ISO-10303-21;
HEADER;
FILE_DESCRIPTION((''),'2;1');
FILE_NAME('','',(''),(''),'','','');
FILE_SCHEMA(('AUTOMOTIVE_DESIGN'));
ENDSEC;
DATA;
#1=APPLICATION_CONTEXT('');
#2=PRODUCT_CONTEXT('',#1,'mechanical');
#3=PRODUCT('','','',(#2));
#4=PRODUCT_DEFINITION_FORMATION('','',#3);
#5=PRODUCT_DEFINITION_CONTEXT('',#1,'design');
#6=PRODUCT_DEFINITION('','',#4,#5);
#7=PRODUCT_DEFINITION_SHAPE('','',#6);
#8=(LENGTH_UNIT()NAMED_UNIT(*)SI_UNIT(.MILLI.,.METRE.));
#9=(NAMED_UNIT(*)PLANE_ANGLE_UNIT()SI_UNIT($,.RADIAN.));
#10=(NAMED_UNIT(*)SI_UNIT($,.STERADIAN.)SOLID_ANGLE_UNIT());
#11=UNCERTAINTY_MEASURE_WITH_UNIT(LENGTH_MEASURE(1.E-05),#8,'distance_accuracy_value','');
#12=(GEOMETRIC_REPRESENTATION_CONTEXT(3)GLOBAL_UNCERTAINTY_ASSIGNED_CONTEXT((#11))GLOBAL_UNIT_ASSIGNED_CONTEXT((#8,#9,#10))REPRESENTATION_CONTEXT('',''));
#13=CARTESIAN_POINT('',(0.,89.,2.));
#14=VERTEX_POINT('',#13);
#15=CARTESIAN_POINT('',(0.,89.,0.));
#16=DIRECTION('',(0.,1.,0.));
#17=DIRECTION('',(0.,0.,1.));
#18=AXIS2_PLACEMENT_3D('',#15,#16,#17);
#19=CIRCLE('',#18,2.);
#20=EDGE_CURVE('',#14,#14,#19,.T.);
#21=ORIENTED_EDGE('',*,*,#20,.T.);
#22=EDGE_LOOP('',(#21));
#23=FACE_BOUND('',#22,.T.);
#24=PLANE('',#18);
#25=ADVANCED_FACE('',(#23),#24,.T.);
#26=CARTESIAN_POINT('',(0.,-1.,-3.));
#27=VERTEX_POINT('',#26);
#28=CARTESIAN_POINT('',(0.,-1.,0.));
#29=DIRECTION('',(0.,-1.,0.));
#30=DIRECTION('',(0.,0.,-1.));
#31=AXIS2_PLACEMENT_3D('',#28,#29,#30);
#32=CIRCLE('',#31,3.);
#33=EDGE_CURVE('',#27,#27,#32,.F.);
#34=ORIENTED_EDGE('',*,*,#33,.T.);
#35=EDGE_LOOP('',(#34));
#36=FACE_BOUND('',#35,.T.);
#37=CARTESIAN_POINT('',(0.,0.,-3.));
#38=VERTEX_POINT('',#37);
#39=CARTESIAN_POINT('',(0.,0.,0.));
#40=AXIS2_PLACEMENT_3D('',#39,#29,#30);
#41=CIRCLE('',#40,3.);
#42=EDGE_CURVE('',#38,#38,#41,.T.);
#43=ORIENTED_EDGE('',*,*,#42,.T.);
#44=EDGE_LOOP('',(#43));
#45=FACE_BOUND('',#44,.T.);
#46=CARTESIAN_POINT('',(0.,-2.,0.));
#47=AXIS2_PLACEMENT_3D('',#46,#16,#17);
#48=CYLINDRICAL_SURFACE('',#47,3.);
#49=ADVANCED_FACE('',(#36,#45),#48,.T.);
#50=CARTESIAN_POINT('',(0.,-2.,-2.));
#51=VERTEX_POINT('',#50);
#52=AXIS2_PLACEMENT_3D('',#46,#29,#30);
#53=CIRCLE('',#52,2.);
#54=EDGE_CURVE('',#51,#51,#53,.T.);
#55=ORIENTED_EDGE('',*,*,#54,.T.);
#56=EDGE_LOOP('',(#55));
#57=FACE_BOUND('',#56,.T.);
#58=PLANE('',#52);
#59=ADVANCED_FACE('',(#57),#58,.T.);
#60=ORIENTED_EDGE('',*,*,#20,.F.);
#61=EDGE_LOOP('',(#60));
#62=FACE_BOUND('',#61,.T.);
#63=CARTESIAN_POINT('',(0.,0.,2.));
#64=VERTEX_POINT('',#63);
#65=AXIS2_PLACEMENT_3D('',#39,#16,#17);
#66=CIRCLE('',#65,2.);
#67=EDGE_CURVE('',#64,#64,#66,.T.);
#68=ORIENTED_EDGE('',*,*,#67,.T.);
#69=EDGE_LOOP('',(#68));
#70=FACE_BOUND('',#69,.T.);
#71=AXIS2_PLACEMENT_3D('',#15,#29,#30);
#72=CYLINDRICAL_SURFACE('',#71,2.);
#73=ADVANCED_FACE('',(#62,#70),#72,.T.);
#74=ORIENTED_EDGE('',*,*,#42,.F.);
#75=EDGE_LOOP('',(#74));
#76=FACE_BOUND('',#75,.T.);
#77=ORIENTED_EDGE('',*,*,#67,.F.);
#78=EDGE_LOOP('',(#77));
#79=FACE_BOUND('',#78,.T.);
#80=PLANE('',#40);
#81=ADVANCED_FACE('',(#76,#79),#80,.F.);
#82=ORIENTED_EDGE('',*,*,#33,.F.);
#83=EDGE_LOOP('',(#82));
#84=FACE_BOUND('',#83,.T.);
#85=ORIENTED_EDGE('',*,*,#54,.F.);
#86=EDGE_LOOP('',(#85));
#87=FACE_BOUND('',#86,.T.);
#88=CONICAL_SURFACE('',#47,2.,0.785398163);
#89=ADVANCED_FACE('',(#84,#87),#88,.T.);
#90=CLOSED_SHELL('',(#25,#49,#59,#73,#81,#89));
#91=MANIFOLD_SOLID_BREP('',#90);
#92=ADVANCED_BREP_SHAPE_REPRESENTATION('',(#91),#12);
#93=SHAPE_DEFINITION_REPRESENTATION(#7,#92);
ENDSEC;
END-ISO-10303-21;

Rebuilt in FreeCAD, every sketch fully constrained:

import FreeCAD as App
import Part
import Sketcher
from FreeCAD import Vector


def edges_at(feature, points):
    """Names of the edges that pass closest to the given points."""
    edges = feature.Shape.Edges
    near = lambda p: min(range(len(edges)), key=lambda i: edges[i].distToShape(Part.Vertex(*p))[0])
    return sorted({f"Edge{near(p) + 1}" for p in points})

doc = App.newDocument("Part")
body = doc.addObject("PartDesign::Body", "Body")

# Sketch on XZ plane
sketch1 = doc.addObject("Sketcher::SketchObject", "Sketch")
body.addObject(sketch1)
sketch1.AttachmentSupport = (doc.XZ_Plane, [""])
sketch1.MapMode = "FlatFace"
sketch1.addGeometry(Part.Circle(Vector(0, 0, 0), Vector(0, 0, 1), 2), False)
sketch1.addConstraint([
    Sketcher.Constraint("Coincident", 0, 3, -1, 1),
    Sketcher.Constraint("Diameter", 0, 4.0),
])
pad1 = doc.addObject("PartDesign::Pad", "Pad")
body.addObject(pad1)
pad1.Profile = sketch1
pad1.Length = 89
pad1.Reversed = True

# Sketch on XZ plane
sketch2 = doc.addObject("Sketcher::SketchObject", "Sketch001")
body.addObject(sketch2)
sketch2.AttachmentSupport = (doc.XZ_Plane, [""])
sketch2.MapMode = "FlatFace"
sketch2.addGeometry(Part.Circle(Vector(0, 0, 0), Vector(0, 0, 1), 3), False)
sketch2.addConstraint([
    Sketcher.Constraint("Coincident", 0, 3, -1, 1),
    Sketcher.Constraint("Diameter", 0, 6.0),
])
pad2 = doc.addObject("PartDesign::Pad", "Pad001")
body.addObject(pad2)
pad2.Profile = sketch2
pad2.Length = 2
doc.recompute()

chamfer = doc.addObject("PartDesign::Chamfer", "Chamfer")
body.addObject(chamfer)
chamfer.Base = (pad2, edges_at(pad2, [(0, -2, 3)]))
chamfer.Size = 1

doc.recompute()
